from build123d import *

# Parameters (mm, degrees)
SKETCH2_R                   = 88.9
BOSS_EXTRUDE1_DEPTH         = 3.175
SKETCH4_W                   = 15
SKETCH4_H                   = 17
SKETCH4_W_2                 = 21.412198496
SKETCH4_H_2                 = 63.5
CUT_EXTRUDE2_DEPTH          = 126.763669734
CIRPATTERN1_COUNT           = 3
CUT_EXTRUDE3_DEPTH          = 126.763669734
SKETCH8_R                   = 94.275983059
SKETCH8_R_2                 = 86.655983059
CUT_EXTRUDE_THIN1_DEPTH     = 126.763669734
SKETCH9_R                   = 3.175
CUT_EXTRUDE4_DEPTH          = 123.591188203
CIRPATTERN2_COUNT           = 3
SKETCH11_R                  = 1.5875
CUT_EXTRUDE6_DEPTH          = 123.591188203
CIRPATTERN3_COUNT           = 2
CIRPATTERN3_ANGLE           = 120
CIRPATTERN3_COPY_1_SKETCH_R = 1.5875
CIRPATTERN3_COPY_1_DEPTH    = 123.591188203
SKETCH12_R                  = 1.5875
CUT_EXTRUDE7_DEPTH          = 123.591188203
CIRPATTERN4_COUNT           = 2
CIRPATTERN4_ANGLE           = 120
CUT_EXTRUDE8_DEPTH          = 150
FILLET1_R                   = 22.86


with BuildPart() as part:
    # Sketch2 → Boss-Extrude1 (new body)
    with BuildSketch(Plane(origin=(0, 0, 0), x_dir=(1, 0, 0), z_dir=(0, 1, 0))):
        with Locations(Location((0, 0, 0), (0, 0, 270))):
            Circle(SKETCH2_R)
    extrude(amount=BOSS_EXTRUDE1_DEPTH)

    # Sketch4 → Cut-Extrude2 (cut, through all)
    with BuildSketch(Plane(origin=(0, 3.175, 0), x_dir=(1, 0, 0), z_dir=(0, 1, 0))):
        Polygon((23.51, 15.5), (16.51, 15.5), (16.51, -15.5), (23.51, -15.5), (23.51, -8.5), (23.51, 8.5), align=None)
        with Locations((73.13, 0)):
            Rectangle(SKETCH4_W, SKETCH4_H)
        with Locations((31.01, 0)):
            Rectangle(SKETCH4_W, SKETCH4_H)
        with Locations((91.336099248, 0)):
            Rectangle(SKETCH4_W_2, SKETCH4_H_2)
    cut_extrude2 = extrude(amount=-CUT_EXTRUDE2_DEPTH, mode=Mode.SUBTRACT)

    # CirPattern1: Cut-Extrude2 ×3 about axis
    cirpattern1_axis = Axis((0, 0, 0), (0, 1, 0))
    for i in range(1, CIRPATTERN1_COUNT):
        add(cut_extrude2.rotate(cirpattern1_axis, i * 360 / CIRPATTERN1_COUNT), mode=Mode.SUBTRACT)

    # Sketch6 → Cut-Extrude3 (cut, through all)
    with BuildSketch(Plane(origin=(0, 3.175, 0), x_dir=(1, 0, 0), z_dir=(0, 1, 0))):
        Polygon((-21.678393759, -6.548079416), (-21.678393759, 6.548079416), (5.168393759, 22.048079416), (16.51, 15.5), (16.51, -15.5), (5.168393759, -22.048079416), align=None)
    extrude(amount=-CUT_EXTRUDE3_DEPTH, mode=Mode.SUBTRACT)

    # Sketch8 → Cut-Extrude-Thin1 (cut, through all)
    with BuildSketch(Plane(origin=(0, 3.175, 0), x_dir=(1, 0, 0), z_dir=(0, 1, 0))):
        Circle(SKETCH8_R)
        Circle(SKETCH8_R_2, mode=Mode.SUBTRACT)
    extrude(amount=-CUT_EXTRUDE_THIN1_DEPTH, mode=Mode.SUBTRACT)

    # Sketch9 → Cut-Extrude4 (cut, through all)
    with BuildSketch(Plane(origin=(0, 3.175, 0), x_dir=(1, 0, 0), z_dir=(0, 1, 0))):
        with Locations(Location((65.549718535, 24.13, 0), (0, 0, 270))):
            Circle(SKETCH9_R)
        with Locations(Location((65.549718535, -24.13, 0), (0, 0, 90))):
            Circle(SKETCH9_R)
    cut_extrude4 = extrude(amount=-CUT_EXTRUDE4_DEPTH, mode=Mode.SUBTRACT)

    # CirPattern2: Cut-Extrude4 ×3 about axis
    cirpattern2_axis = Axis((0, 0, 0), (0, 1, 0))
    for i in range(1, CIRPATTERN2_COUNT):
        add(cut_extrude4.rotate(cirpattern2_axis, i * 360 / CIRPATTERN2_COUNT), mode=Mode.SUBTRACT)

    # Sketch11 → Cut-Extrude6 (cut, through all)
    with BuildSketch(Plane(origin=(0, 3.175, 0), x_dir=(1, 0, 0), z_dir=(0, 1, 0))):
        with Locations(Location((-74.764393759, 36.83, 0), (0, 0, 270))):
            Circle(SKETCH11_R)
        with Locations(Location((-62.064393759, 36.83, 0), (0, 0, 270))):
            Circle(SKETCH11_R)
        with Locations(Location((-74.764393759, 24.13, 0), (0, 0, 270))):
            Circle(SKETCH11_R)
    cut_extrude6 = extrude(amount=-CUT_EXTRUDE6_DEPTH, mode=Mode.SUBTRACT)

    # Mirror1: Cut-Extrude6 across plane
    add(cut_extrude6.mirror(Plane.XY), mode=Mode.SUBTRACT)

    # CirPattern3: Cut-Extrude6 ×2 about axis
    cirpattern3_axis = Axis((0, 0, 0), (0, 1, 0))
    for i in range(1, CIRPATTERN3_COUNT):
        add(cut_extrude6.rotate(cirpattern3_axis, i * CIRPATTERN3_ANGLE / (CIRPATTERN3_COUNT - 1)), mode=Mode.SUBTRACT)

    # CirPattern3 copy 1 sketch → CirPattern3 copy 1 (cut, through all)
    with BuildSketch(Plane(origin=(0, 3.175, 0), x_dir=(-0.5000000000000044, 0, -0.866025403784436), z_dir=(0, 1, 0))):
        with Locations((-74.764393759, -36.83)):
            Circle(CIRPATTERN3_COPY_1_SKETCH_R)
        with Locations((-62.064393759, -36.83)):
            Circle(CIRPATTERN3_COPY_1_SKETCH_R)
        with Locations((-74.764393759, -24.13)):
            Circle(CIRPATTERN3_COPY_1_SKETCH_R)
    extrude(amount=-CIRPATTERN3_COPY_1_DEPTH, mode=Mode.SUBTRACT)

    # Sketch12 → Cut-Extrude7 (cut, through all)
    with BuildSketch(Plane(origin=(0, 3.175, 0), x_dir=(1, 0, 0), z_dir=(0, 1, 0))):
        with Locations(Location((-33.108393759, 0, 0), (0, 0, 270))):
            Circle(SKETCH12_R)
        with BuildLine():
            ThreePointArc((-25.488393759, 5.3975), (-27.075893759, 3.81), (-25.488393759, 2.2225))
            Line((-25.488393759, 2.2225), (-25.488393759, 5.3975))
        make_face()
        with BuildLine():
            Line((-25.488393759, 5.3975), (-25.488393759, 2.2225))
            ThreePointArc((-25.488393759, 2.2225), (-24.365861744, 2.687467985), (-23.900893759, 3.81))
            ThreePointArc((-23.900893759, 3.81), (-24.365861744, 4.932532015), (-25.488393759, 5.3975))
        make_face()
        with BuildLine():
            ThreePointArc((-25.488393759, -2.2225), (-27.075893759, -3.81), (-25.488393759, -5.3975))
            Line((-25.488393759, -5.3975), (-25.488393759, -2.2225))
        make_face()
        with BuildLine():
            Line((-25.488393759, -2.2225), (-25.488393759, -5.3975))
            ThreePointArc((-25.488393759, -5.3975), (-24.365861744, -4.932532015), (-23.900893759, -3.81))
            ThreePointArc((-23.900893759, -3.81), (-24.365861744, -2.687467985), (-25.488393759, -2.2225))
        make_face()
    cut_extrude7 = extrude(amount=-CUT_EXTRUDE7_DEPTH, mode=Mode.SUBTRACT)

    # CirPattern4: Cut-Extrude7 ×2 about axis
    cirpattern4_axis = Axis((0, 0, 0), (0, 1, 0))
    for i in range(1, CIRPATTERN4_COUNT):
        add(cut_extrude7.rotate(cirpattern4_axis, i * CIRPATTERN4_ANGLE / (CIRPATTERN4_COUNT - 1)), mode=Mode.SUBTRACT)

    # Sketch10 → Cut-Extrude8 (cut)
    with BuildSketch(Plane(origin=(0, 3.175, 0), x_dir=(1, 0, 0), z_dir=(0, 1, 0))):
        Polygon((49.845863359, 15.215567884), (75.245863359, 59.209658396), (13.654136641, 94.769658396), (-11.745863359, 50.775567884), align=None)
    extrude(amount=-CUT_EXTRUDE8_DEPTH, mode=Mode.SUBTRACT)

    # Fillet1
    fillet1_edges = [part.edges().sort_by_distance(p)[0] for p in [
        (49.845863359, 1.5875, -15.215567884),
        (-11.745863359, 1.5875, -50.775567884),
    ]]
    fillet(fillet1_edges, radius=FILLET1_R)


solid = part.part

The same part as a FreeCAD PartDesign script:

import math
import FreeCAD as App
import Part
import Sketcher
Q = App.Units.Quantity


def edges_at(feature, points):
    """Names of the edges that pass closest to the given points."""
    edges = feature.Shape.Edges
    near = lambda p: min(range(len(edges)), key=lambda i: edges[i].distToShape(Part.Vertex(*p))[0])
    return sorted({f"Edge{near(p) + 1}" for p in points})


def add_polygon(sketch, points):
    """Adds a closed chain of lines whose ends are joined by coincident constraints."""
    first, n = sketch.GeometryCount, len(points)
    for a, b in zip(points, points[1:] + points[:1]):
        sketch.addGeometry(Part.LineSegment(App.Vector(*a, 0), App.Vector(*b, 0)), False)
    for i in range(n):
        sketch.addConstraint(Sketcher.Constraint("Coincident", first + i, 2, first + (i + 1) % n, 1))

doc = App.newDocument("Part")
body = doc.addObject("PartDesign::Body", "Body")

# Sketch on XZ plane
sketch1 = body.newObject("Sketcher::SketchObject", "Sketch")
sketch1.AttachmentSupport = (doc.getObject("XZ_Plane"), [""])
sketch1.MapMode = "FlatFace"
sketch1.addGeometry(Part.Circle(App.Vector(0, 0, 0), App.Vector(0, 0, 1), 88.9), False)
sketch1.addConstraint(Sketcher.Constraint("Coincident", 0, 3, -1, 1))
sketch1.addConstraint(Sketcher.Constraint("Diameter", 0, Q("7 in")))
pad1 = body.newObject("PartDesign::Pad", "Pad")
pad1.Profile = sketch1
pad1.Length = Q("0.125 in")
pad1.Reversed = True

# Sketch on XZ plane
sketch2 = body.newObject("Sketcher::SketchObject", "Sketch001")
sketch2.AttachmentSupport = (doc.getObject("XZ_Plane"), [""])
sketch2.MapMode = "FlatFace"
sketch2.AttachmentOffset = App.Placement(App.Vector(0, 0, -0.125 * 25.4), App.Rotation())
add_polygon(sketch2, [(23.51, -15.5), (16.51, -15.5), (16.51, 15.5), (23.51, 15.5), (23.51, 8.5), (38.51, 8.5), (38.51, -8.5), (23.51, -8.5)])  # lines 0-7
add_polygon(sketch2, [(65.63, -8.5), (65.63, 8.5), (80.63, 8.5), (80.63, 31.75), (102.042198, 31.75), (102.042198, -31.75), (80.63, -31.75), (80.63, -8.5)])  # lines 8-15
sketch2.addConstraint(Sketcher.Constraint("Horizontal", 0))
sketch2.addConstraint(Sketcher.Constraint("Vertical", 1))
sketch2.addConstraint(Sketcher.Constraint("Horizontal", 2))
sketch2.addConstraint(Sketcher.Constraint("Vertical", 3))
sketch2.addConstraint(Sketcher.Constraint("Horizontal", 4))
sketch2.addConstraint(Sketcher.Constraint("Vertical", 5))
sketch2.addConstraint(Sketcher.Constraint("Horizontal", 6))
sketch2.addConstraint(Sketcher.Constraint("Vertical", 7))
sketch2.addConstraint(Sketcher.Constraint("Vertical", 8))
sketch2.addConstraint(Sketcher.Constraint("Horizontal", 9))
sketch2.addConstraint(Sketcher.Constraint("Vertical", 10))
sketch2.addConstraint(Sketcher.Constraint("Horizontal", 11))
sketch2.addConstraint(Sketcher.Constraint("Vertical", 12))
sketch2.addConstraint(Sketcher.Constraint("Horizontal", 13))
sketch2.addConstraint(Sketcher.Constraint("Vertical", 14))
sketch2.addConstraint(Sketcher.Constraint("Horizontal", 15))
sketch2.addConstraint(Sketcher.Constraint("Symmetric", 3, 2, 6, 2, -1))
sketch2.addConstraint(Sketcher.Constraint("Symmetric", 10, 2, 13, 2, -1))
sketch2.addConstraint(Sketcher.Constraint("Horizontal", 4, 2, 8, 2))
sketch2.addConstraint(Sketcher.Constraint("Horizontal", 6, 2, 14, 2))
sketch2.addConstraint(Sketcher.Constraint("Equal", 6, 9))
sketch2.addConstraint(Sketcher.Constraint("Equal", 2, 3))
sketch2.addConstraint(Sketcher.Constraint("Equal", 3, 7))
sketch2.addConstraint(Sketcher.Constraint("DistanceY", 12, 2, 12, 1, Q("2.5 in")))
sketch2.addConstraint(Sketcher.Constraint("DistanceX", 11, 1, 11, 2, Q("0.8429999 in")))
sketch2.addConstraint(Sketcher.Constraint("DistanceX", -1, 1, 0, 2, Q("0.65 in")))
sketch2.addConstraint(Sketcher.Constraint("DistanceX", 0, 2, 0, 1, Q("7 mm")))
sketch2.addConstraint(Sketcher.Constraint("DistanceX", 4, 1, 4, 2, Q("15 mm")))
sketch2.addConstraint(Sketcher.Constraint("DistanceY", 1, 1, 1, 2, Q("31 mm")))
sketch2.addConstraint(Sketcher.Constraint("DistanceX", -1, 1, 8, 2, Q("65.63 mm")))
pocket1 = body.newObject("PartDesign::Pocket", "Pocket")
pocket1.Profile = sketch2
pocket1.Type = "ThroughAll"
pocket1.Reversed = True
doc.recompute()

polarpattern = body.newObject("PartDesign::PolarPattern", "PolarPattern")
polarpattern.Originals = [pocket1]
polarpattern.Axis = (doc.getObject("Y_Axis"), [""])
polarpattern.Angle = 360
polarpattern.Occurrences = 3
body.Tip = polarpattern

# Sketch on XZ plane
sketch3 = body.newObject("Sketcher::SketchObject", "Sketch002")
sketch3.AttachmentSupport = (doc.getObject("XZ_Plane"), [""])
sketch3.MapMode = "FlatFace"
sketch3.AttachmentOffset = App.Placement(App.Vector(0, 0, -0.125 * 25.4), App.Rotation())
add_polygon(sketch3, [(-21.678394, -6.548079), (-21.678394, 6.548079), (5.168394, 22.048079), (16.51, 15.5), (16.51, -15.5), (5.168394, -22.048079)])  # lines 0-5
sketch3.addConstraint(Sketcher.Constraint("Vertical", 0))
sketch3.addConstraint(Sketcher.Constraint("Vertical", 3))
sketch3.addConstraint(Sketcher.Constraint("Symmetric", 1, 2, 4, 2, -1))
sketch3.addConstraint(Sketcher.Constraint("Parallel", 1, 4))
sketch3.addConstraint(Sketcher.Constraint("Parallel", 2, 5))
sketch3.addConstraint(Sketcher.Constraint("Equal", 2, 4))
sketch3.addConstraint(Sketcher.Constraint("Angle", 1, Q("30 deg")))
sketch3.addConstraint(Sketcher.Constraint("DistanceX", -1, 1, 2, 2, Q("0.65 in")))
sketch3.addConstraint(Sketcher.Constraint("DistanceY", 3, 2, 3, 1, Q("31 mm")))
sketch3.addConstraint(Sketcher.Constraint("Distance", 1, Q("31 mm")))
sketch3.addConstraint(Sketcher.Constraint("DistanceY", 0, 1, 0, 2, Q("13.096159 mm")))
pocket2 = body.newObject("PartDesign::Pocket", "Pocket001")
pocket2.Profile = sketch3
pocket2.Type = "ThroughAll"
pocket2.Reversed = True

# Sketch on XZ plane
sketch4 = body.newObject("Sketcher::SketchObject", "Sketch003")
sketch4.AttachmentSupport = (doc.getObject("XZ_Plane"), [""])
sketch4.MapMode = "FlatFace"
sketch4.AttachmentOffset = App.Placement(App.Vector(0, 0, -0.125 * 25.4), App.Rotation())
sketch4.addGeometry(Part.Circle(App.Vector(0, 0, 0), App.Vector(0, 0, 1), 94.275983), False)
sketch4.addGeometry(Part.Circle(App.Vector(0, 0, 0), App.Vector(0, 0, 1), 86.655983), False)
sketch4.addConstraint(Sketcher.Constraint("Coincident", 0, 3, -1, 1))
sketch4.addConstraint(Sketcher.Constraint("Coincident", 1, 3, -1, 1))
sketch4.addConstraint(Sketcher.Constraint("Diameter", 0, Q("188.551966 mm")))
sketch4.addConstraint(Sketcher.Constraint("Diameter", 1, Q("173.311966 mm")))
pocket3 = body.newObject("PartDesign::Pocket", "Pocket002")
pocket3.Profile = sketch4
pocket3.Type = "ThroughAll"
pocket3.Reversed = True

# Sketch on XZ plane
sketch5 = body.newObject("Sketcher::SketchObject", "Sketch004")
sketch5.AttachmentSupport = (doc.getObject("XZ_Plane"), [""])
sketch5.MapMode = "FlatFace"
sketch5.AttachmentOffset = App.Placement(App.Vector(0, 0, -0.125 * 25.4), App.Rotation())
sketch5.addGeometry(Part.Circle(App.Vector(65.549719, -24.13, 0), App.Vector(0, 0, 1), 3.175), False)
sketch5.addGeometry(Part.Circle(App.Vector(65.549719, 24.13, 0), App.Vector(0, 0, 1), 3.175), False)
sketch5.addConstraint(Sketcher.Constraint("Equal", 0, 1))
sketch5.addConstraint(Sketcher.Constraint("Symmetric", 0, 3, 1, 3, -1))
sketch5.addConstraint(Sketcher.Constraint("Diameter", 0, Q("0.25 in")))
sketch5.addConstraint(Sketcher.Constraint("DistanceY", 0, 3, 1, 3, Q("1.9 in")))
sketch5.addConstraint(Sketcher.Constraint("DistanceX", -1, 1, 0, 3, Q("65.549719 mm")))
pocket4 = body.newObject("PartDesign::Pocket", "Pocket003")
pocket4.Profile = sketch5
pocket4.Type = "ThroughAll"
pocket4.Reversed = True
doc.recompute()

polarpattern2 = body.newObject("PartDesign::PolarPattern", "PolarPattern001")
polarpattern2.Originals = [pocket4]
polarpattern2.Axis = (doc.getObject("Y_Axis"), [""])
polarpattern2.Angle = 360
polarpattern2.Occurrences = 3
body.Tip = polarpattern2

# Sketch on XZ plane
sketch6 = body.newObject("Sketcher::SketchObject", "Sketch005")
sketch6.AttachmentSupport = (doc.getObject("XZ_Plane"), [""])
sketch6.MapMode = "FlatFace"
sketch6.AttachmentOffset = App.Placement(App.Vector(0, 0, -0.125 * 25.4), App.Rotation())
sketch6.addGeometry(Part.Circle(App.Vector(-74.764394, -36.83, 0), App.Vector(0, 0, 1), 1.5875), False)
sketch6.addGeometry(Part.Circle(App.Vector(-62.064394, -36.83, 0), App.Vector(0, 0, 1), 1.5875), False)
sketch6.addGeometry(Part.Circle(App.Vector(-74.764394, -24.13, 0), App.Vector(0, 0, 1), 1.5875), False)
sketch6.addConstraint(Sketcher.Constraint("Equal", 0, 1))
sketch6.addConstraint(Sketcher.Constraint("Equal", 1, 2))
sketch6.addConstraint(Sketcher.Constraint("Horizontal", 0, 3, 1, 3))
sketch6.addConstraint(Sketcher.Constraint("Vertical", 0, 3, 2, 3))
sketch6.addConstraint(Sketcher.Constraint("Diameter", 0, Q("0.125 in")))
sketch6.addConstraint(Sketcher.Constraint("DistanceX", 0, 3, 1, 3, Q("0.5 in")))
sketch6.addConstraint(Sketcher.Constraint("DistanceY", 0, 3, 2, 3, Q("0.5 in")))
sketch6.addConstraint(Sketcher.Constraint("DistanceY", 0, 3, -1, 1, Q("1.45 in")))
sketch6.addConstraint(Sketcher.Constraint("DistanceX", 0, 3, -1, 1, Q("74.764394 mm")))
pocket5 = body.newObject("PartDesign::Pocket", "Pocket004")
pocket5.Profile = sketch6
pocket5.Type = "ThroughAll"
pocket5.Reversed = True
doc.recompute()

mirrored = body.newObject("PartDesign::Mirrored", "Mirrored")
mirrored.Originals = [pocket5]
mirrored.MirrorPlane = (doc.getObject("XY_Plane"), [""])
body.Tip = mirrored
doc.recompute()

polarpattern3 = body.newObject("PartDesign::PolarPattern", "PolarPattern002")
polarpattern3.Originals = [pocket5]
polarpattern3.Axis = (doc.getObject("Y_Axis"), [""])
polarpattern3.Angle = 120
polarpattern3.Occurrences = 2
body.Tip = polarpattern3

# Sketch on XZ plane
sketch7 = body.newObject("Sketcher::SketchObject", "Sketch006")
sketch7.AttachmentSupport = (doc.getObject("XZ_Plane"), [""])
sketch7.MapMode = "FlatFace"
sketch7.AttachmentOffset = App.Placement(App.Vector(0, 0, -0.125 * 25.4), App.Rotation())
sketch7.addGeometry(Part.Circle(App.Vector(69.277913, 46.332864, 0), App.Vector(0, 0, 1), 1.5875), False)
sketch7.addGeometry(Part.Circle(App.Vector(62.927913, 35.334342, 0), App.Vector(0, 0, 1), 1.5875), False)
sketch7.addGeometry(Part.Circle(App.Vector(58.27939, 52.682864, 0), App.Vector(0, 0, 1), 1.5875), False)
sketch7.addConstraint(Sketcher.Constraint("Equal", 0, 1))
sketch7.addConstraint(Sketcher.Constraint("Equal", 1, 2))
sketch7.addConstraint(Sketcher.Constraint("Diameter", 0, Q("0.125 in")))
sketch7.addConstraint(Sketcher.Constraint("DistanceX", 1, 3, 0, 3, Q("0.25 in")))
sketch7.addConstraint(Sketcher.Constraint("DistanceY", 0, 3, 2, 3, Q("0.25 in")))
sketch7.addConstraint(Sketcher.Constraint("DistanceY", -1, 1, 1, 3, Q("35.334342 mm")))
sketch7.addConstraint(Sketcher.Constraint("DistanceX", -1, 1, 2, 3, Q("58.27939 mm")))
sketch7.addConstraint(Sketcher.Constraint("DistanceX", -1, 1, 0, 3, Q("69.277913 mm")))
sketch7.addConstraint(Sketcher.Constraint("DistanceY", -1, 1, 0, 3, Q("46.332864 mm")))
pocket6 = body.newObject("PartDesign::Pocket", "Pocket005")
pocket6.Profile = sketch7
pocket6.Type = "ThroughAll"
pocket6.Reversed = True

# Sketch on XZ plane
sketch8 = body.newObject("Sketcher::SketchObject", "Sketch007")
sketch8.AttachmentSupport = (doc.getObject("XZ_Plane"), [""])
sketch8.MapMode = "FlatFace"
sketch8.AttachmentOffset = App.Placement(App.Vector(0, 0, -0.125 * 25.4), App.Rotation())
sketch8.addGeometry(Part.Circle(App.Vector(-33.108394, 0, 0), App.Vector(0, 0, 1), 1.5875), False)
sketch8.addGeometry(Part.ArcOfCircle(Part.Circle(App.Vector(-25.488394, -3.81, 0), App.Vector(0, 0, 1), 1.5875), math.radians(90), math.radians(270)), False)
sketch8.addGeometry(Part.ArcOfCircle(Part.Circle(App.Vector(-25.488394, -3.81, 0), App.Vector(0, 0, 1), 1.5875), math.radians(0), math.radians(90)), False)
sketch8.addGeometry(Part.ArcOfCircle(Part.Circle(App.Vector(-25.488394, -3.81, 0), App.Vector(0, 0, 1), 1.5875), math.radians(-90), math.radians(0)), False)
sketch8.addGeometry(Part.ArcOfCircle(Part.Circle(App.Vector(-25.488394, 3.81, 0), App.Vector(0, 0, 1), 1.5875), math.radians(90), math.radians(270)), False)
sketch8.addGeometry(Part.ArcOfCircle(Part.Circle(App.Vector(-25.488394, 3.81, 0), App.Vector(0, 0, 1), 1.5875), math.radians(0), math.radians(90)), False)
sketch8.addGeometry(Part.ArcOfCircle(Part.Circle(App.Vector(-25.488394, 3.81, 0), App.Vector(0, 0, 1), 1.5875), math.radians(-90), math.radians(0)), False)
sketch8.addConstraint(Sketcher.Constraint("Tangent", 1, 1, 2, 2))
sketch8.addConstraint(Sketcher.Constraint("Tangent", 2, 1, 3, 2))
sketch8.addConstraint(Sketcher.Constraint("Tangent", 3, 1, 1, 2))
sketch8.addConstraint(Sketcher.Constraint("Tangent", 4, 1, 5, 2))
sketch8.addConstraint(Sketcher.Constraint("Tangent", 5, 1, 6, 2))
sketch8.addConstraint(Sketcher.Constraint("Tangent", 6, 1, 4, 2))
sketch8.addConstraint(Sketcher.Constraint("Equal", 0, 1))
sketch8.addConstraint(Sketcher.Constraint("Equal", 3, 4))
sketch8.addConstraint(Sketcher.Constraint("Symmetric", 1, 3, 4, 3, -1))
sketch8.addConstraint(Sketcher.Constraint("PointOnObject", 0, 3, -1))
sketch8.addConstraint(Sketcher.Constraint("Horizontal", 3, 3, 2, 1))
sketch8.addConstraint(Sketcher.Constraint("Horizontal", 6, 3, 5, 1))
sketch8.addConstraint(Sketcher.Constraint("Vertical", 6, 3, 1, 1))
sketch8.addConstraint(Sketcher.Constraint("Vertical", 1, 1, 3, 1))
sketch8.addConstraint(Sketcher.Constraint("Vertical", 3, 1, 4, 1))
sketch8.addConstraint(Sketcher.Constraint("Vertical", 4, 1, 6, 1))
sketch8.addConstraint(Sketcher.Constraint("Diameter", 0, Q("0.125 in")))
sketch8.addConstraint(Sketcher.Constraint("DistanceX", 0, 3, 1, 3, Q("0.3 in")))
sketch8.addConstraint(Sketcher.Constraint("DistanceY", 1, 3, 4, 3, Q("0.3 in")))
sketch8.addConstraint(Sketcher.Constraint("DistanceX", 0, 3, -1, 1, Q("33.108394 mm")))
pocket7 = body.newObject("PartDesign::Pocket", "Pocket006")
pocket7.Profile = sketch8
pocket7.Type = "ThroughAll"
pocket7.Reversed = True
doc.recompute()

polarpattern4 = body.newObject("PartDesign::PolarPattern", "PolarPattern003")
polarpattern4.Originals = [pocket7]
polarpattern4.Axis = (doc.getObject("Y_Axis"), [""])
polarpattern4.Angle = 120
polarpattern4.Occurrences = 2
body.Tip = polarpattern4

# Sketch on XZ plane
sketch9 = body.newObject("Sketcher::SketchObject", "Sketch008")
sketch9.AttachmentSupport = (doc.getObject("XZ_Plane"), [""])
sketch9.MapMode = "FlatFace"
sketch9.AttachmentOffset = App.Placement(App.Vector(0, 0, -0.125 * 25.4), App.Rotation())
add_polygon(sketch9, [(49.845863, -15.215568), (75.245863, -59.209658), (13.654137, -94.769658), (-11.745863, -50.775568)])  # lines 0-3
sketch9.addConstraint(Sketcher.Constraint("Perpendicular", 0, 1))
sketch9.addConstraint(Sketcher.Constraint("Perpendicular", 1, 2))
sketch9.addConstraint(Sketcher.Constraint("Perpendicular", 2, 3))
sketch9.addConstraint(Sketcher.Constraint("Distance", 0, Q("2 in")))
sketch9.addConstraint(Sketcher.Constraint("Angle", 0, Q("-60 deg")))
sketch9.addConstraint(Sketcher.Constraint("Distance", 1, Q("2.8 in")))
sketch9.addConstraint(Sketcher.Constraint("DistanceY", 0, 2, -1, 1, Q("59.209658 mm")))
sketch9.addConstraint(Sketcher.Constraint("DistanceX", -1, 1, 0, 2, Q("75.245863 mm")))
pocket8 = body.newObject("PartDesign::Pocket", "Pocket007")
pocket8.Profile = sketch9
pocket8.Length = 150
pocket8.Reversed = True
doc.recompute()

fillet = body.newObject("PartDesign::Fillet", "Fillet")
fillet.Base = (pocket8, edges_at(pocket8, [(49.846, 1.587, -15.216), (-11.746, 1.587, -50.776)]))
fillet.Radius = Q("0.9 in")

doc.recompute()
